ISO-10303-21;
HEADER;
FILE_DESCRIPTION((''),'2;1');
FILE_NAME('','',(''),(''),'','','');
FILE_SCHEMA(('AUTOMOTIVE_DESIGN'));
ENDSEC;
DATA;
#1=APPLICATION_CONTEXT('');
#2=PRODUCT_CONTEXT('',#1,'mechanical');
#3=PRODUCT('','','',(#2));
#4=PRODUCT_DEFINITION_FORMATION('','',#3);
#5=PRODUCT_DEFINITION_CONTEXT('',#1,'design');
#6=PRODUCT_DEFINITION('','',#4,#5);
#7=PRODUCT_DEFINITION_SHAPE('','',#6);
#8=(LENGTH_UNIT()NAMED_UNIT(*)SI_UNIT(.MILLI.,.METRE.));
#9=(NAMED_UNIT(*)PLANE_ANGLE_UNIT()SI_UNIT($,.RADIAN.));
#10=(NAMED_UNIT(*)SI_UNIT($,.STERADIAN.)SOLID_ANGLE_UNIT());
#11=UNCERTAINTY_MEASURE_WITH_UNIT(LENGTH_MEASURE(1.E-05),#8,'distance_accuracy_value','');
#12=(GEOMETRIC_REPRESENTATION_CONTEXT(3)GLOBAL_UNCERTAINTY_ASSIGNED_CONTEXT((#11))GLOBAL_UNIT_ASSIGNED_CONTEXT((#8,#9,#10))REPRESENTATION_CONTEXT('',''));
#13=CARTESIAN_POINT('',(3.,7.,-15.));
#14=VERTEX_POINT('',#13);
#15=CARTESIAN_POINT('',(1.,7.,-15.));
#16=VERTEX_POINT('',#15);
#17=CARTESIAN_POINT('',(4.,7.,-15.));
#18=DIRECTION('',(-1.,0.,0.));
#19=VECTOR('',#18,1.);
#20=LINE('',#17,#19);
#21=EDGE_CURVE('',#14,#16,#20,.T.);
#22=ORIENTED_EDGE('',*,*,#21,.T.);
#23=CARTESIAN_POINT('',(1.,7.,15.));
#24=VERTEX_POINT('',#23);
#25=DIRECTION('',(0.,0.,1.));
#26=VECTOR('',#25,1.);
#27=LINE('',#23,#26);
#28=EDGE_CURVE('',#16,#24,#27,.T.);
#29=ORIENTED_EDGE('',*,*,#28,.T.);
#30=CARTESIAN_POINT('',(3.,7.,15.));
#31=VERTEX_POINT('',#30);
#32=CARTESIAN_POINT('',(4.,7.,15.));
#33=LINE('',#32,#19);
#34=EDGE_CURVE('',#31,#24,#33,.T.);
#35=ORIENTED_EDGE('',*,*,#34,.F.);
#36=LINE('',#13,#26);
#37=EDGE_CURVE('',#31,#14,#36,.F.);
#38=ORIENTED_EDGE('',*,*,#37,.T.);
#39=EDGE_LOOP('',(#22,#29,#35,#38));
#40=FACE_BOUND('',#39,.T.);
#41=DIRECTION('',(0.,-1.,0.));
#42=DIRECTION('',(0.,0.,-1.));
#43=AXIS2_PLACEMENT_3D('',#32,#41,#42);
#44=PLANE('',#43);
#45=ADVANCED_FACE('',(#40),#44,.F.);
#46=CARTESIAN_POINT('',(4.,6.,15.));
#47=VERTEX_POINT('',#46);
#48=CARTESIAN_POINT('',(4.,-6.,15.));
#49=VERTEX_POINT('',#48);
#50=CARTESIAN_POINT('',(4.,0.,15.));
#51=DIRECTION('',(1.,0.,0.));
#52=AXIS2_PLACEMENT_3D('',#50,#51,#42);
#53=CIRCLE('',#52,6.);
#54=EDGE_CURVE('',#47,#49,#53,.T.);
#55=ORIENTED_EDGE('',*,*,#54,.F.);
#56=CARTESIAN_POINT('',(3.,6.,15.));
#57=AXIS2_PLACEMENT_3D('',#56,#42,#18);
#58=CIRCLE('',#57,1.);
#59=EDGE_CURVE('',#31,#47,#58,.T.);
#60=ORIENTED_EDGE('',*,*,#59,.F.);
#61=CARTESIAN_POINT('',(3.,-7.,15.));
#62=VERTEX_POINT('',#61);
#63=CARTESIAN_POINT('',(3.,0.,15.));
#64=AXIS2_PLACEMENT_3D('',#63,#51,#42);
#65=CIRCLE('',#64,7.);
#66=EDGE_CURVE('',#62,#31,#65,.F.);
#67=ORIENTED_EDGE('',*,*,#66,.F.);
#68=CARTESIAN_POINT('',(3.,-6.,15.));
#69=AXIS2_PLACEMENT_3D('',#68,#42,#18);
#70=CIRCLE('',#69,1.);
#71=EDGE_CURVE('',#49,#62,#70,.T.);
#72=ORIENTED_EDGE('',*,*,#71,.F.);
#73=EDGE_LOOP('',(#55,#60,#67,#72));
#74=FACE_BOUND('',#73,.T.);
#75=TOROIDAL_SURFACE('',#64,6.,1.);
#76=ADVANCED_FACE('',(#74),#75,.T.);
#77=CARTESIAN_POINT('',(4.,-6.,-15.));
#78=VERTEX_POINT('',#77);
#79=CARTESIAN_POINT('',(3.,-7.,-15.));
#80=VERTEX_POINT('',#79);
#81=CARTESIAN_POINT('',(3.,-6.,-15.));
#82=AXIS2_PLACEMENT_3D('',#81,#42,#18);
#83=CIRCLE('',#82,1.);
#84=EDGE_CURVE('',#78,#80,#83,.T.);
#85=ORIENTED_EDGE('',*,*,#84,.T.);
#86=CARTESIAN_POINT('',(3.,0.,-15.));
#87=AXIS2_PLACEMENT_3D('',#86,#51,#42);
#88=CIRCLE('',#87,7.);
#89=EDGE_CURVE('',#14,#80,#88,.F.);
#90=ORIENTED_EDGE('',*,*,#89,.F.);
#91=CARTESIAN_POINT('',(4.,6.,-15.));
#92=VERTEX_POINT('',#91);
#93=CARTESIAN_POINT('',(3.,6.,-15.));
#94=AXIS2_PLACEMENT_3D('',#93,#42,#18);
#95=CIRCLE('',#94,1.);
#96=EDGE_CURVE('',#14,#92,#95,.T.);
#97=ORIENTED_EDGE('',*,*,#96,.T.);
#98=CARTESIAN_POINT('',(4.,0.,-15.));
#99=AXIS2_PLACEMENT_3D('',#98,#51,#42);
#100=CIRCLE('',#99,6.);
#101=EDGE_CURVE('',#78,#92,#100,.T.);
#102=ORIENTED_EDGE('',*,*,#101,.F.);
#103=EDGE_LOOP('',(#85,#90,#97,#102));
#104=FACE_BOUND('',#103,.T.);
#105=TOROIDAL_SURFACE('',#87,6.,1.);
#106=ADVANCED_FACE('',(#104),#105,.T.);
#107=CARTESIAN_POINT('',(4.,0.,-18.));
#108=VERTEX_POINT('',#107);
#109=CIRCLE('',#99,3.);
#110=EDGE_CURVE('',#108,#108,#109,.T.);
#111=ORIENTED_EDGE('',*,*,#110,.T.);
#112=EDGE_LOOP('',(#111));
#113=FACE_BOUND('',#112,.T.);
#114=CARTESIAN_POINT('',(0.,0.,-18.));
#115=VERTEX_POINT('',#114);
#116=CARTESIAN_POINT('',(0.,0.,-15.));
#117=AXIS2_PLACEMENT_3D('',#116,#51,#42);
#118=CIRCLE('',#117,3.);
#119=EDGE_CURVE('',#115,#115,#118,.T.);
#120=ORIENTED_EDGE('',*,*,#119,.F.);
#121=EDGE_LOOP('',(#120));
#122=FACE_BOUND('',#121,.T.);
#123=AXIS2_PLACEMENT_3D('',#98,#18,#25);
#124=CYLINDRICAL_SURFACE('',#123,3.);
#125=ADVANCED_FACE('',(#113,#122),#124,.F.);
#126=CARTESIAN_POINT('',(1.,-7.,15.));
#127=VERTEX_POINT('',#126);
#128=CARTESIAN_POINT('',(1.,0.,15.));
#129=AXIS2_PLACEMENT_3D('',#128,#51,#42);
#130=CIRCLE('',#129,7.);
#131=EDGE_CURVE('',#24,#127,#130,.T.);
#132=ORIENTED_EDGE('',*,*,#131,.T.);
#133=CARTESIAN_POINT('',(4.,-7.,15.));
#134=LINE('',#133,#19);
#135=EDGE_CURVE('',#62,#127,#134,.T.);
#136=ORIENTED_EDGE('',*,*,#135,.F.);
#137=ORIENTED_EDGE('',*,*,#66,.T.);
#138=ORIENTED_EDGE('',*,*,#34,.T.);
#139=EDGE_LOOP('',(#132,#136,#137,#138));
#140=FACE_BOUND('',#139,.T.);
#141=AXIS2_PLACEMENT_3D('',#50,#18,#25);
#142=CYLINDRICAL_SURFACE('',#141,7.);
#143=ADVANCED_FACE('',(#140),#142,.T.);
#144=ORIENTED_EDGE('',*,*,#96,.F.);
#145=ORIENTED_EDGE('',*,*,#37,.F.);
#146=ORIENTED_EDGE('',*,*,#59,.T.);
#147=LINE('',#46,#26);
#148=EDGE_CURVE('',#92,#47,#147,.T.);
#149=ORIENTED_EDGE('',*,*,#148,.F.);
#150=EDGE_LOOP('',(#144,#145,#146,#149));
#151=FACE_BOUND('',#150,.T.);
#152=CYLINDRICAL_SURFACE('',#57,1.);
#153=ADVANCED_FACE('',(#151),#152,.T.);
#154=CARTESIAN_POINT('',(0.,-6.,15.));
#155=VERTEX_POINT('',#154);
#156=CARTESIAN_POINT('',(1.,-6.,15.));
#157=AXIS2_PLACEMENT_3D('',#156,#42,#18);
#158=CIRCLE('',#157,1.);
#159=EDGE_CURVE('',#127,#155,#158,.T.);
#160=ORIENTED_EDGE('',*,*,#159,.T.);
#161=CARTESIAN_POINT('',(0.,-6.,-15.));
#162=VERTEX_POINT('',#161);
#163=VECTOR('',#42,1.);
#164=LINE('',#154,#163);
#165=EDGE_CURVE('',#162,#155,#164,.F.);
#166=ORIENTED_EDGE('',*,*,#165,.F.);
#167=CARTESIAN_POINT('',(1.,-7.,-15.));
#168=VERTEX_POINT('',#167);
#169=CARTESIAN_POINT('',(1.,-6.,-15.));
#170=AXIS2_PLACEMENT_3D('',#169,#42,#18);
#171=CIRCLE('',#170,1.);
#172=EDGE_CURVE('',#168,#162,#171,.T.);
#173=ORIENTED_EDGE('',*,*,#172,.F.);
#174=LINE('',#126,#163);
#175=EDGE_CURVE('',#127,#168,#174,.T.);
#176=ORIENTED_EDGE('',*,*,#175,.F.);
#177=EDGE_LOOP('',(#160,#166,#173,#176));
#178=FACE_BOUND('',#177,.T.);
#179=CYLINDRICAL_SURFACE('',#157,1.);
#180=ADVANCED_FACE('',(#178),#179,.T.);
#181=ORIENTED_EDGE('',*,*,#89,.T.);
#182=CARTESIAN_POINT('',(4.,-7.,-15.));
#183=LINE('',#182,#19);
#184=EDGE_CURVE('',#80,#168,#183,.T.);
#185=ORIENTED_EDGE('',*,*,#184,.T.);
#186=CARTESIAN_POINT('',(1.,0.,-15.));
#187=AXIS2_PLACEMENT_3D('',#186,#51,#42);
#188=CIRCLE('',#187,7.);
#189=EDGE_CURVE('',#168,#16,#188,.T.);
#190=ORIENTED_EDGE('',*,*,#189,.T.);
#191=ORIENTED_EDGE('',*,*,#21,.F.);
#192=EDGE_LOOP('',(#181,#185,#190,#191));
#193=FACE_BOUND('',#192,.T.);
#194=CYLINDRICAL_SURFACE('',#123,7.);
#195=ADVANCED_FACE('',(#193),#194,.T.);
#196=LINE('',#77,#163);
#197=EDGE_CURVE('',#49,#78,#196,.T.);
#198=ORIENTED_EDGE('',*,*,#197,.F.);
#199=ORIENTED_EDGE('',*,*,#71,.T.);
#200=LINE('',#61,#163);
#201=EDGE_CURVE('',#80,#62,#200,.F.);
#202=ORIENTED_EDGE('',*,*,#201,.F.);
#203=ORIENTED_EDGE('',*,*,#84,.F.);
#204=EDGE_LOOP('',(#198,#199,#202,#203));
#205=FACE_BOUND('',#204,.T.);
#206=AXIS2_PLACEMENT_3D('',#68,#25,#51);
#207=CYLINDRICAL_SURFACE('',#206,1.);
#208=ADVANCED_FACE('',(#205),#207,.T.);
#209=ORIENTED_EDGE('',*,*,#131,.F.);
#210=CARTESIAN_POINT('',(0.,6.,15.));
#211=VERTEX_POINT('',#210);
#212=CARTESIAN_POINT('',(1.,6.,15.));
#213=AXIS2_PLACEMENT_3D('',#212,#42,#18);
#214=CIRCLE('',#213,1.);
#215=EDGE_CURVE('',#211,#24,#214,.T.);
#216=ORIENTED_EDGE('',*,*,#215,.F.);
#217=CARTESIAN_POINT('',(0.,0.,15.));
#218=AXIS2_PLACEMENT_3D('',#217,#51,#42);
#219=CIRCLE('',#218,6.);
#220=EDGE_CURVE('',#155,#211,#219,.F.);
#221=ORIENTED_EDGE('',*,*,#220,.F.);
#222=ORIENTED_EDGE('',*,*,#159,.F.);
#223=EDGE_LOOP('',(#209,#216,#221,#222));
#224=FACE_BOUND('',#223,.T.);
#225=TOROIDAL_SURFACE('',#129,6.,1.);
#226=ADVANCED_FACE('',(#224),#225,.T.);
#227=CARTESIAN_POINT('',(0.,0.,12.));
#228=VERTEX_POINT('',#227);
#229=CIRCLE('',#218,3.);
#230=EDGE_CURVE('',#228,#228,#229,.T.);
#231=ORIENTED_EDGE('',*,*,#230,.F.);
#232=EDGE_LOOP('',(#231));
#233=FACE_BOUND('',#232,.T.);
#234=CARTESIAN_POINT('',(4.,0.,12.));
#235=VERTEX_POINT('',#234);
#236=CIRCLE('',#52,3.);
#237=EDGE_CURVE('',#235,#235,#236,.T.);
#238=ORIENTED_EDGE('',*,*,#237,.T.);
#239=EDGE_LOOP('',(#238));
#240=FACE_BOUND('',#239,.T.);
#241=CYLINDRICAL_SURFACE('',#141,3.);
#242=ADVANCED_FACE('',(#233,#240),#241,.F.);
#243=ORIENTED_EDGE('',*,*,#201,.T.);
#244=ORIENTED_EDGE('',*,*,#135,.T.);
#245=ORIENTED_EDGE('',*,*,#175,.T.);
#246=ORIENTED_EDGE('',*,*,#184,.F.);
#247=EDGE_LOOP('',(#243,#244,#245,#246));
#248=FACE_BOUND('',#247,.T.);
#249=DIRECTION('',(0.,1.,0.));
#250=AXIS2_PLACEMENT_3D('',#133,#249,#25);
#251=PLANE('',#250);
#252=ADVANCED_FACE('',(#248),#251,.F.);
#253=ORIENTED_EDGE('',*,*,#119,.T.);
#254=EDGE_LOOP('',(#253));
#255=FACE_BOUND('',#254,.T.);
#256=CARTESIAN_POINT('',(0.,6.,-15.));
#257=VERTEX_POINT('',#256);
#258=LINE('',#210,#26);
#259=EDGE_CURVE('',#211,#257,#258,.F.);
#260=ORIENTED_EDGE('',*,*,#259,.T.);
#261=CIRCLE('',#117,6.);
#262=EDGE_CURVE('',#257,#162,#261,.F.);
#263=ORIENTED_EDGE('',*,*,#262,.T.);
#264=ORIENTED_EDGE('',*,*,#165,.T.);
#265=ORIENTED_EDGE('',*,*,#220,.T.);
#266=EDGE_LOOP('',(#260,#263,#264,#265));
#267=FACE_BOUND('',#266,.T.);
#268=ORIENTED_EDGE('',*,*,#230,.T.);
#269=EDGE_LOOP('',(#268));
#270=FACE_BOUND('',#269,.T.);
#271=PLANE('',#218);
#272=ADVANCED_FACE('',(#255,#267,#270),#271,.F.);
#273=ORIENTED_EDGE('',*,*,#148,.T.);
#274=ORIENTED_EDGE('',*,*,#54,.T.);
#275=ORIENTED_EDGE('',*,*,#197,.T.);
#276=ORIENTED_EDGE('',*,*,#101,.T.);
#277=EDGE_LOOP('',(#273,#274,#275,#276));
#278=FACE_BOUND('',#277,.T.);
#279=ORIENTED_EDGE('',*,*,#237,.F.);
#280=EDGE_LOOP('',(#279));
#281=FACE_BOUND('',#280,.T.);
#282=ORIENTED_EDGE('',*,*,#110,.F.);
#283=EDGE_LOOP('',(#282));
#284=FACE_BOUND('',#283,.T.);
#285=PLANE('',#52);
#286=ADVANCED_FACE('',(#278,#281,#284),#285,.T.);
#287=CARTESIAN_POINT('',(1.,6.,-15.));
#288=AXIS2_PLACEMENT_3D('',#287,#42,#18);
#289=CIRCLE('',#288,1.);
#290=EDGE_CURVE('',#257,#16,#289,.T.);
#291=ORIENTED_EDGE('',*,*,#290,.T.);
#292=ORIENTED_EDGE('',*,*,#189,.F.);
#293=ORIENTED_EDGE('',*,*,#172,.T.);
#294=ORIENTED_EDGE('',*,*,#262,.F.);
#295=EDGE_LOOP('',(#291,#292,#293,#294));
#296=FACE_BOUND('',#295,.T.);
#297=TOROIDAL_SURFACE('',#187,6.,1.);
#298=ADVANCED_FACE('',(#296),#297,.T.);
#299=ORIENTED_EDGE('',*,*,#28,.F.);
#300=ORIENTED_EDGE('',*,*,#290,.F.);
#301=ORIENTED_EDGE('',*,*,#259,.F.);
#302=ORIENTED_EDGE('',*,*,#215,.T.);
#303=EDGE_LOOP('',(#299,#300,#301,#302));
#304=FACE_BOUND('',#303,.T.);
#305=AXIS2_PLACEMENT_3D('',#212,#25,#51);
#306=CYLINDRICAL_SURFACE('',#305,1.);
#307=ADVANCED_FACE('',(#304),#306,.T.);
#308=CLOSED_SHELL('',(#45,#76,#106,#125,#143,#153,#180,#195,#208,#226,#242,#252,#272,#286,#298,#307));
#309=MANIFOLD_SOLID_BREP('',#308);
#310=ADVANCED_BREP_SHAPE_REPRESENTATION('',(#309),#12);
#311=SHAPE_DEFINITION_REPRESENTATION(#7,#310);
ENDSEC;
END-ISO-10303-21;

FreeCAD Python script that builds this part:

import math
import FreeCAD as App
import Part
import Sketcher

V = App.Vector


def edges_at(feature, points):
    """Names of the edges that pass closest to the given points."""
    edges = feature.Shape.Edges
    near = lambda p: min(range(len(edges)), key=lambda i: edges[i].distToShape(Part.Vertex(*p))[0])
    return sorted({f"Edge{near(p) + 1}" for p in points})

doc = App.newDocument("Part")
body = doc.addObject("PartDesign::Body", "Body")

sketch1 = body.newObject("Sketcher::SketchObject", "Sketch")
sketch1.AttachmentSupport = (doc.getObject("YZ_Plane"), [""])
sketch1.MapMode = "FlatFace"
sketch1.addGeometry([
    Part.LineSegment(V(7, -15, 0), V(7, 15, 0)),
    Part.ArcOfCircle(Part.Circle(V(0, 15, 0), V(0, 0, 1), 7), math.radians(0), math.radians(180)),
    Part.LineSegment(V(-7, 15, 0), V(-7, -15, 0)),
    Part.ArcOfCircle(Part.Circle(V(0, -15, 0), V(0, 0, 1), 7), math.radians(180), math.radians(360)),
    Part.Circle(V(0, -15, 0), V(0, 0, 1), 3),
    Part.Circle(V(0, 15, 0), V(0, 0, 1), 3),
], False)
sketch1.addConstraint([
    Sketcher.Constraint("Tangent", 0, 2, 1, 1),
    Sketcher.Constraint("Tangent", 1, 2, 2, 1),
    Sketcher.Constraint("Tangent", 2, 2, 3, 1),
    Sketcher.Constraint("Tangent", 3, 2, 0, 1),
    Sketcher.Constraint("Vertical", 0),
    Sketcher.Constraint("Vertical", 2),
    Sketcher.Constraint("Coincident", 4, 3, 3, 3),
    Sketcher.Constraint("Coincident", 5, 3, 1, 3),
    Sketcher.Constraint("Equal", 4, 5),
    Sketcher.Constraint("Symmetric", 1, 3, 3, 3, -1, 1),
    Sketcher.Constraint("Diameter", 4, 6.0),
    Sketcher.Constraint("Radius", 1, 7.0),
    Sketcher.Constraint("DistanceY", 0, 1, 0, 2, 30.0),
])
pad1 = body.newObject("PartDesign::Pad", "Pad")
pad1.Profile = sketch1
pad1.Length = 4
doc.recompute()

fillet = body.newObject("PartDesign::Fillet", "Fillet")
fillet.Base = (pad1, edges_at(pad1, [
    (4, 0, -22),
    (4, 7, 0),
    (4, 0, 22),
    (0, 7, 0),
    (0, 0, -22),
    (0, -7, 0),
    (0, 0, 22),
    (4, -7, 0),
]))
fillet.Radius = 1

doc.recompute()
